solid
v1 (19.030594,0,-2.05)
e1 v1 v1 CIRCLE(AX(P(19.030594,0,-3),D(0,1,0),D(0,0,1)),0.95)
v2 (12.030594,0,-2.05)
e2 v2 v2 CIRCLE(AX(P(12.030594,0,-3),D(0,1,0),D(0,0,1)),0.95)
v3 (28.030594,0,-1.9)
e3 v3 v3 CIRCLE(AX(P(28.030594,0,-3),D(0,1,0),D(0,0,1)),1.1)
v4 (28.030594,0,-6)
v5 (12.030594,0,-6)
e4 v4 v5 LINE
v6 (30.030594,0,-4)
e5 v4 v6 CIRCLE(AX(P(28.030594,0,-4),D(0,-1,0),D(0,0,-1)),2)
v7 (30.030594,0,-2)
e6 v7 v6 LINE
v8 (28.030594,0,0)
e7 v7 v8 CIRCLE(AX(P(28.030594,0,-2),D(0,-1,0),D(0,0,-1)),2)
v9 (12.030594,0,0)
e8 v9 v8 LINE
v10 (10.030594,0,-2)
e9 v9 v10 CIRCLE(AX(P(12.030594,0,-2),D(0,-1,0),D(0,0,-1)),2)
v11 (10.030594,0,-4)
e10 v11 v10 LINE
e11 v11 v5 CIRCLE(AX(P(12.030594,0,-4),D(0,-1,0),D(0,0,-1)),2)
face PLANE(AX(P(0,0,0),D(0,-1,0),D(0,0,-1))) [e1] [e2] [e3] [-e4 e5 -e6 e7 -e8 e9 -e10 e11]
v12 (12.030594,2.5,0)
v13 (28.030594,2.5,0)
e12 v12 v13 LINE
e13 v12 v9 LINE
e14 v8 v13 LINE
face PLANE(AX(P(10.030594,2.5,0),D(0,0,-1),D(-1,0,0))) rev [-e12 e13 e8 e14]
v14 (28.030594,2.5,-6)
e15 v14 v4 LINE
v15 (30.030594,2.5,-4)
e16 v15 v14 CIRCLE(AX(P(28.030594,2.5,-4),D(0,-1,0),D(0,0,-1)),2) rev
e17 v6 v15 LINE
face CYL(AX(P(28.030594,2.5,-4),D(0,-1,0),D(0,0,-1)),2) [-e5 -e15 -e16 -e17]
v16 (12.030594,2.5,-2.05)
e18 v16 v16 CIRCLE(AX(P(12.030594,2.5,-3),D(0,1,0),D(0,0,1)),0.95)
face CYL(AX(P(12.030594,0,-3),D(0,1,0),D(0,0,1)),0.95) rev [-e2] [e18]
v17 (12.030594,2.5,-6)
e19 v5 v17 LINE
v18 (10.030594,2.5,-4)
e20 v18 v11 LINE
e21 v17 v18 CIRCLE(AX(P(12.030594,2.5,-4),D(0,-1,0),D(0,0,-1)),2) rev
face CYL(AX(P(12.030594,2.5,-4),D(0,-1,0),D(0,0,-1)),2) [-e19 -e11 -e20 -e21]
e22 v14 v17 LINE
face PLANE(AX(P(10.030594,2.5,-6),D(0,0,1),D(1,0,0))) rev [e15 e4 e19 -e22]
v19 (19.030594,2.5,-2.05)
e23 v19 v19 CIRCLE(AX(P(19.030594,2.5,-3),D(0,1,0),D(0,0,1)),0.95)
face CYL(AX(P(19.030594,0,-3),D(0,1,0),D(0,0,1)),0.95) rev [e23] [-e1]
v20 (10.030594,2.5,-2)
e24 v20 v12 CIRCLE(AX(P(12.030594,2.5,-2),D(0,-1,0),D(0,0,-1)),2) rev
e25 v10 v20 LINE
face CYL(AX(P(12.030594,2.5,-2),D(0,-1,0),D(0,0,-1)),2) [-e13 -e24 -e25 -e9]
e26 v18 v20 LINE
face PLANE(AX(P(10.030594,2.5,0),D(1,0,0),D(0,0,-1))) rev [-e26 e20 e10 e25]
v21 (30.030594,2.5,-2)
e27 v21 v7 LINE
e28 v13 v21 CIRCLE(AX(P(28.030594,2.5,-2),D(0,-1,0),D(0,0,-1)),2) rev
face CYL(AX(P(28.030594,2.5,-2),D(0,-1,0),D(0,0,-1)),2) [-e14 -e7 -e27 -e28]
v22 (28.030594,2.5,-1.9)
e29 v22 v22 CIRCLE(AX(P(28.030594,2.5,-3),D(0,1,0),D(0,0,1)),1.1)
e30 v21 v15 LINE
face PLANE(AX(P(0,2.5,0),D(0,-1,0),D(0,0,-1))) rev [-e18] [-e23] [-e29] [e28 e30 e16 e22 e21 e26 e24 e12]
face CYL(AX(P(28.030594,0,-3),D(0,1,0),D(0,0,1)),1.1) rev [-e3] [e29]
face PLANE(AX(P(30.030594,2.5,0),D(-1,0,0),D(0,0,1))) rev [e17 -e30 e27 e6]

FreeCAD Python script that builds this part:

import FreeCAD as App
import Part
import Sketcher


def edges_at(feature, points):
    """Names of the edges that pass closest to the given points."""
    edges = feature.Shape.Edges
    near = lambda p: min(range(len(edges)), key=lambda i: edges[i].distToShape(Part.Vertex(*p))[0])
    return sorted({f"Edge{near(p) + 1}" for p in points})


def add_polygon(sketch, points):
    """Adds a closed chain of lines whose ends are joined by coincident constraints."""
    first, n = sketch.GeometryCount, len(points)
    for a, b in zip(points, points[1:] + points[:1]):
        sketch.addGeometry(Part.LineSegment(App.Vector(*a, 0), App.Vector(*b, 0)), False)
    for i in range(n):
        sketch.addConstraint(Sketcher.Constraint("Coincident", first + i, 2, first + (i + 1) % n, 1))

doc = App.newDocument("Part")
body = doc.addObject("PartDesign::Body", "Body")

sketch1 = doc.addObject("Sketcher::SketchObject", "Sketch")
body.addObject(sketch1)
sketch1.AttachmentSupport = (doc.XZ_Plane, [""])
sketch1.MapMode = "FlatFace"
add_polygon(sketch1, [(10, -6), (10, 0), (30, 0), (30, -6)])
sketch1.addConstraint(Sketcher.Constraint("Vertical", 0))
sketch1.addConstraint(Sketcher.Constraint("Horizontal", 1))
sketch1.addConstraint(Sketcher.Constraint("Vertical", 2))
sketch1.addConstraint(Sketcher.Constraint("Horizontal", 3))
sketch1.addConstraint(Sketcher.Constraint("PointOnObject", 0, 2, -1))
sketch1.addConstraint(Sketcher.Constraint("DistanceX", 1, 1, 1, 2, 20.0))
sketch1.addConstraint(Sketcher.Constraint("DistanceY", 0, 1, 0, 2, 6.0))
sketch1.addConstraint(Sketcher.Constraint("DistanceX", -1, 1, 0, 2, 10.030594))
pad1 = doc.addObject("PartDesign::Pad", "Pad")
body.addObject(pad1)
pad1.Profile = sketch1
pad1.Length = 2.5
pad1.Reversed = True

sketch2 = doc.addObject("Sketcher::SketchObject", "Sketch001")
body.addObject(sketch2)
sketch2.AttachmentSupport = (doc.XZ_Plane, [""])
sketch2.MapMode = "FlatFace"
sketch2.AttachmentOffset = App.Placement(App.Vector(0, 0, -2.5), App.Rotation())
sketch2.addGeometry(Part.Circle(App.Vector(28, -3, 0), App.Vector(0, 0, 1), 1.1), False)
sketch2.addGeometry(Part.Circle(App.Vector(12, -3, 0), App.Vector(0, 0, 1), 0.9), False)
sketch2.addGeometry(Part.Circle(App.Vector(19, -3, 0), App.Vector(0, 0, 1), 0.9), False)
sketch2.addConstraint(Sketcher.Constraint("Equal", 1, 2))
sketch2.addConstraint(Sketcher.Constraint("Horizontal", 0, 3, 1, 3))
sketch2.addConstraint(Sketcher.Constraint("Horizontal", 1, 3, 2, 3))
sketch2.addConstraint(Sketcher.Constraint("Diameter", 0, 2.2))
sketch2.addConstraint(Sketcher.Constraint("Diameter", 1, 1.9))
sketch2.addConstraint(Sketcher.Constraint("DistanceY", 0, 3, -1, 1, 3.0))
sketch2.addConstraint(Sketcher.Constraint("DistanceX", 1, 3, 0, 3, 16.0))
sketch2.addConstraint(Sketcher.Constraint("DistanceX", 1, 3, 2, 3, 7.0))
sketch2.addConstraint(Sketcher.Constraint("DistanceX", -1, 1, 0, 3, 28.030594))
pocket1 = doc.addObject("PartDesign::Pocket", "Pocket")
body.addObject(pocket1)
pocket1.Profile = sketch2
pocket1.Type = "ThroughAll"
pocket1.Reversed = True
doc.recompute()

fillet = doc.addObject("PartDesign::Fillet", "Fillet")
body.addObject(fillet)
fillet.Base = (pocket1, edges_at(pocket1, [
    (10.031, 1.25, -6),
    (30.031, 1.25, -6),
    (30.031, 1.25, 0),
    (10.031, 1.25, 0),
]))
fillet.Radius = 2

doc.recompute()
